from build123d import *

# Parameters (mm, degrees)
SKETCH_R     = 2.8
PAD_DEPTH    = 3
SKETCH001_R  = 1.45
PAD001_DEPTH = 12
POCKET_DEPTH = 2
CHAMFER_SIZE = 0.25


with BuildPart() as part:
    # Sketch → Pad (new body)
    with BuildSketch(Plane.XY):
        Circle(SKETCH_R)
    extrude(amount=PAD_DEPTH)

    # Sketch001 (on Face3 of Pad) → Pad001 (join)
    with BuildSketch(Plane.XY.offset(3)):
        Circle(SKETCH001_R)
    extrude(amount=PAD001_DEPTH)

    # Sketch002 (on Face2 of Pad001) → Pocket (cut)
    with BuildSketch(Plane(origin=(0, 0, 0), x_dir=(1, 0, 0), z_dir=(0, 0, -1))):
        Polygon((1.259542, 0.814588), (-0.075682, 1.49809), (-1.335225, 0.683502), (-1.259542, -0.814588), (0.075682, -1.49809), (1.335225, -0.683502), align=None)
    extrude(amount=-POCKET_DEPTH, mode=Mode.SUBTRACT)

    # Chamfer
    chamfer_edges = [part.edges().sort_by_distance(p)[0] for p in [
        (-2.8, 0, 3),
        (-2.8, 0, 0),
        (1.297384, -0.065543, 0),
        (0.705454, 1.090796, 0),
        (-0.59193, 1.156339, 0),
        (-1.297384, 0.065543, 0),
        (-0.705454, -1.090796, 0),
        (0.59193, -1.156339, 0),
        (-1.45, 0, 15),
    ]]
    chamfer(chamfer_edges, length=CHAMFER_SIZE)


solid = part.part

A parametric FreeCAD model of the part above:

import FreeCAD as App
import Part
import Sketcher
from FreeCAD import Vector


def edges_at(feature, points):
    """Names of the edges that pass closest to the given points."""
    edges = feature.Shape.Edges
    near = lambda p: min(range(len(edges)), key=lambda i: edges[i].distToShape(Part.Vertex(*p))[0])
    return sorted({f"Edge{near(p) + 1}" for p in points})

doc = App.newDocument("Part")
body = doc.addObject("PartDesign::Body", "Body")

# Sketch on XY plane
sketch1 = body.newObject("Sketcher::SketchObject", "Sketch")
sketch1.AttachmentSupport = (doc.getObject("XY_Plane"), [""])
sketch1.MapMode = "FlatFace"
sketch1.addGeometry(Part.Circle(Vector(0, 0, 0), Vector(0, 0, 1), 2.8), False)
sketch1.addConstraint(Sketcher.Constraint("Coincident", 0, 3, -1, 1))
sketch1.addConstraint(Sketcher.Constraint("Diameter", 0, 5.6))
pad1 = body.newObject("PartDesign::Pad", "Pad")
pad1.Profile = sketch1
pad1.Length = 3

# Sketch on XY plane
sketch2 = body.newObject("Sketcher::SketchObject", "Sketch001")
sketch2.AttachmentSupport = (doc.getObject("XY_Plane"), [""])
sketch2.MapMode = "FlatFace"
sketch2.AttachmentOffset = App.Placement(Vector(0, 0, 3), App.Rotation())
sketch2.addGeometry(Part.Circle(Vector(0, 0, 0), Vector(0, 0, 1), 1.4), False)
sketch2.addConstraint(Sketcher.Constraint("Coincident", 0, 3, -1, 1))
sketch2.addConstraint(Sketcher.Constraint("Diameter", 0, 2.9))
pad2 = body.newObject("PartDesign::Pad", "Pad001")
pad2.Profile = sketch2
pad2.Length = 12

# Sketch on XY plane
sketch3 = body.newObject("Sketcher::SketchObject", "Sketch002")
sketch3.AttachmentSupport = (doc.getObject("XY_Plane"), [""])
sketch3.MapMode = "FlatFace"
sketch3.addGeometry(Part.LineSegment(Vector(1.3, -0.8, 0), Vector(-0.1, -1.5, 0)), False)
sketch3.addGeometry(Part.LineSegment(Vector(-0.1, -1.5, 0), Vector(-1.3, -0.7, 0)), False)
sketch3.addGeometry(Part.LineSegment(Vector(-1.3, -0.7, 0), Vector(-1.3, 0.8, 0)), False)
sketch3.addGeometry(Part.LineSegment(Vector(-1.3, 0.8, 0), Vector(0.1, 1.5, 0)), False)
sketch3.addGeometry(Part.LineSegment(Vector(0.1, 1.5, 0), Vector(1.3, 0.7, 0)), False)
sketch3.addGeometry(Part.LineSegment(Vector(1.3, 0.7, 0), Vector(1.3, -0.8, 0)), False)
sketch3.addConstraint(Sketcher.Constraint("Coincident", 0, 2, 1, 1))
sketch3.addConstraint(Sketcher.Constraint("Coincident", 1, 2, 2, 1))
sketch3.addConstraint(Sketcher.Constraint("Coincident", 2, 2, 3, 1))
sketch3.addConstraint(Sketcher.Constraint("Coincident", 3, 2, 4, 1))
sketch3.addConstraint(Sketcher.Constraint("Coincident", 4, 2, 5, 1))
sketch3.addConstraint(Sketcher.Constraint("Coincident", 5, 2, 0, 1))
sketch3.addConstraint(Sketcher.Constraint("Symmetric", 0, 2, 3, 2, -1, 1))
sketch3.addConstraint(Sketcher.Constraint("Symmetric", 1, 2, 4, 2, -1, 1))
sketch3.addConstraint(Sketcher.Constraint("Symmetric", 2, 2, 5, 2, -1, 1))
sketch3.addConstraint(Sketcher.Constraint("Equal", 0, 1))
sketch3.addConstraint(Sketcher.Constraint("Equal", 1, 2))
sketch3.addConstraint(Sketcher.Constraint("Distance", 0, 1.499999))
sketch3.addConstraint(Sketcher.Constraint("DistanceY", 2, 2, 3, 2, 0.683502))
sketch3.addConstraint(Sketcher.Constraint("DistanceY", 0, 2, -1, 1, 1.49809))
sketch3.addConstraint(Sketcher.Constraint("DistanceX", 2, 2, -1, 1, 1.259542))
pocket1 = body.newObject("PartDesign::Pocket", "Pocket")
pocket1.Profile = sketch3
pocket1.Length = 2
pocket1.Reversed = True
doc.recompute()

chamfer = body.newObject("PartDesign::Chamfer", "Chamfer")
chamfer.Base = (pocket1, edges_at(pocket1, [
    (-2.8, 0, 3),
    (-2.8, 0, 0),
    (1.297, -0.066, 0),
    (0.705, 1.091, 0),
    (-0.592, 1.156, 0),
    (-1.297, 0.066, 0),
    (-0.705, -1.091, 0),
    (0.592, -1.156, 0),
    (-1.45, 0, 15),
]))
chamfer.Size = 0.25

doc.recompute()
